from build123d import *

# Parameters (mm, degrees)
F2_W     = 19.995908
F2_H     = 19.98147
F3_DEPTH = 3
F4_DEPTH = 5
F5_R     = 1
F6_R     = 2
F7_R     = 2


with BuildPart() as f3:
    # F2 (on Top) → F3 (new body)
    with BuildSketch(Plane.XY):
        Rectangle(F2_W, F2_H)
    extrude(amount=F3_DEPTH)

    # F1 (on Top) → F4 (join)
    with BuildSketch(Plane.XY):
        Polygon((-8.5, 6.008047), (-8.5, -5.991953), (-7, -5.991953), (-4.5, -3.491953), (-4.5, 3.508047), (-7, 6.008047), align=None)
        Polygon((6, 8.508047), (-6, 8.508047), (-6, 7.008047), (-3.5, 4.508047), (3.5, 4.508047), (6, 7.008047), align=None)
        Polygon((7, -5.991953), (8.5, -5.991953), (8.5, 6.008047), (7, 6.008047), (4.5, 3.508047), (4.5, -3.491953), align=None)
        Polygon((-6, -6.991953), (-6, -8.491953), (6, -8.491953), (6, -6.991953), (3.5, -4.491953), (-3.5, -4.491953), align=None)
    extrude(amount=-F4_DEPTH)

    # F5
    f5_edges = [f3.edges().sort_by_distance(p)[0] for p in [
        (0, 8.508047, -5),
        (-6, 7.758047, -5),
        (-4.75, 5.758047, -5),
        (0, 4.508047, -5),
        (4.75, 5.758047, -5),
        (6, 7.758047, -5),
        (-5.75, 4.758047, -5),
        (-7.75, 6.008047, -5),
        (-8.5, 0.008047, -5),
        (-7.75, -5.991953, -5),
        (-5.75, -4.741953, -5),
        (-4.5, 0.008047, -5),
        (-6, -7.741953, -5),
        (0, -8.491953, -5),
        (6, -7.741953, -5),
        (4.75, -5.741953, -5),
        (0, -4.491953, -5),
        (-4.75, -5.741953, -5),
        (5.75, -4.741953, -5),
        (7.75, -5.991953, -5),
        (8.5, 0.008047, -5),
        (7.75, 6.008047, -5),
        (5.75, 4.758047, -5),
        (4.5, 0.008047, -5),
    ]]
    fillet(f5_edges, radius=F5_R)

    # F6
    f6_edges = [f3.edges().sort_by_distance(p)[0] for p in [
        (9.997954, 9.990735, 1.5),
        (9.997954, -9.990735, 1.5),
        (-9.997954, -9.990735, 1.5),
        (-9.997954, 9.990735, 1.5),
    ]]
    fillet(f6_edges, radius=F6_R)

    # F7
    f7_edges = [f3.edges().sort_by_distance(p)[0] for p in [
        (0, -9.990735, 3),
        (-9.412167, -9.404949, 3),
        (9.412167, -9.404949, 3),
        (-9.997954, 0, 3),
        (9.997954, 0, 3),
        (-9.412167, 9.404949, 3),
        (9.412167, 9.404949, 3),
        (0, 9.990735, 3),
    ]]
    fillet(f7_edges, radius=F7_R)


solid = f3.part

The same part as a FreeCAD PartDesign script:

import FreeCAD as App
import Part
import Sketcher
from FreeCAD import Vector
Q = App.Units.Quantity


def edges_at(feature, points):
    """Names of the edges that pass closest to the given points."""
    edges = feature.Shape.Edges
    near = lambda p: min(range(len(edges)), key=lambda i: edges[i].distToShape(Part.Vertex(*p))[0])
    return sorted({f"Edge{near(p) + 1}" for p in points})


def add_polygon(sketch, points):
    """Adds a closed chain of lines whose ends are joined by coincident constraints."""
    first, n = sketch.GeometryCount, len(points)
    for a, b in zip(points, points[1:] + points[:1]):
        sketch.addGeometry(Part.LineSegment(App.Vector(*a, 0), App.Vector(*b, 0)), False)
    for i in range(n):
        sketch.addConstraint(Sketcher.Constraint("Coincident", first + i, 2, first + (i + 1) % n, 1))

doc = App.newDocument("Part")
params = doc.addObject("Spreadsheet::Sheet", "Params")
for row, (alias, value) in enumerate([
    ("pad1_length", "3 mm"),
    ("sketch2_width", "12 mm"),
    ("sketch2_width2", "7 mm"),
    ("sketch2_width3", "1.5 mm"),
    ("pad2_length", "5 mm"),
    ("fillet_radius", "1 mm"),
    ("fillet2_radius", "2 mm"),
    ("fillet3_radius", "2 mm"),
], start=1):
    params.set(f"A{row}", alias)
    params.set(f"B{row}", "=" + value)
    params.setAlias(f"B{row}", alias)

body = doc.addObject("PartDesign::Body", "Body")

# Sketch on XY plane
sketch1 = body.newObject("Sketcher::SketchObject", "Sketch")
sketch1.AttachmentSupport = (doc.getObject("XY_Plane"), [""])
sketch1.MapMode = "FlatFace"
add_polygon(sketch1, [(-9.997954, 9.990735), (-9.997954, -9.990735), (9.997954, -9.990735), (9.997954, 9.990735)])  # lines 0-3
sketch1.addConstraint([
    Sketcher.Constraint("Vertical", 0),
    Sketcher.Constraint("Horizontal", 1),
    Sketcher.Constraint("Vertical", 2),
    Sketcher.Constraint("Horizontal", 3),
    Sketcher.Constraint("Symmetric", 0, 2, 2, 2, -1, 1),
    Sketcher.Constraint("DistanceX", 1, 1, 1, 2, Q("19.995908 mm")),
    Sketcher.Constraint("DistanceY", 0, 2, 0, 1, Q("19.98147 mm")),
])
pad1 = body.newObject("PartDesign::Pad", "Pad")
pad1.Profile = sketch1
pad1.setExpression("Length", "Params.pad1_length")

# Sketch on XY plane
sketch2 = body.newObject("Sketcher::SketchObject", "Sketch001")
sketch2.AttachmentSupport = (doc.getObject("XY_Plane"), [""])
sketch2.MapMode = "FlatFace"
add_polygon(sketch2, [(-8.5, 6.008047), (-8.5, -5.991953), (-7, -5.991953), (-4.5, -3.491953), (-4.5, 3.508047), (-7, 6.008047)])  # lines 0-5
add_polygon(sketch2, [(6, 8.508047), (-6, 8.508047), (-6, 7.008047), (-3.5, 4.508047), (3.5, 4.508047), (6, 7.008047)])  # lines 6-11
add_polygon(sketch2, [(7, -5.991953), (8.5, -5.991953), (8.5, 6.008047), (7, 6.008047), (4.5, 3.508047), (4.5, -3.491953)])  # lines 12-17
add_polygon(sketch2, [(-6, -6.991953), (-6, -8.491953), (6, -8.491953), (6, -6.991953), (3.5, -4.491953), (-3.5, -4.491953)])  # lines 18-23
sketch2.addConstraint([
    Sketcher.Constraint("Vertical", 0),
    Sketcher.Constraint("Horizontal", 1),
    Sketcher.Constraint("Vertical", 3),
    Sketcher.Constraint("Horizontal", 5),
    Sketcher.Constraint("Horizontal", 6),
    Sketcher.Constraint("Vertical", 7),
    Sketcher.Constraint("Horizontal", 9),
    Sketcher.Constraint("Vertical", 11),
    Sketcher.Constraint("Horizontal", 12),
    Sketcher.Constraint("Vertical", 13),
    Sketcher.Constraint("Horizontal", 14),
    Sketcher.Constraint("Vertical", 16),
    Sketcher.Constraint("Vertical", 18),
    Sketcher.Constraint("Horizontal", 19),
    Sketcher.Constraint("Vertical", 20),
    Sketcher.Constraint("Horizontal", 22),
    Sketcher.Constraint("Symmetric", 7, 2, 10, 2, -2),
    Sketcher.Constraint("Symmetric", 0, 2, 12, 2, -2),
    Sketcher.Constraint("Symmetric", 4, 2, 14, 2, -2),
    Sketcher.Constraint("Symmetric", 3, 2, 15, 2, -2),
    Sketcher.Constraint("Symmetric", 20, 2, 23, 2, -2),
    Sketcher.Constraint("Perpendicular", 2, 4),
    Sketcher.Constraint("Parallel", 4, 8),
    Sketcher.Constraint("Perpendicular", 8, 10),
    Sketcher.Constraint("Parallel", 10, 15),
    Sketcher.Constraint("Perpendicular", 15, 17),
    Sketcher.Constraint("Parallel", 17, 21),
    Sketcher.Constraint("Perpendicular", 21, 23),
    Sketcher.Constraint("Horizontal", 2, 2, 16, 2),
    Sketcher.Constraint("Vertical", 1, 2, 4, 2),
    Sketcher.Constraint("Vertical", 7, 2, 18, 2),
    Sketcher.Constraint("Vertical", 9, 2, 21, 2),
    Sketcher.Constraint("Equal", 19, 0),
    Sketcher.Constraint("Equal", 22, 3),
    Sketcher.Constraint("Equal", 14, 7),
    Sketcher.Constraint("Equal", 11, 18),
    Sketcher.Constraint("DistanceX", 6, 2, 6, 1, Q("12 mm")),
    Sketcher.Constraint("DistanceX", 9, 1, 9, 2, Q("7 mm")),
    Sketcher.Constraint("DistanceX", 1, 1, 1, 2, Q("1.5 mm")),
    Sketcher.Constraint("DistanceX", 1, 2, -1, 1, Q("7 mm")),
    Sketcher.Constraint("DistanceY", 3, 2, 6, 2, Q("5 mm")),
    Sketcher.Constraint("DistanceY", 18, 2, 2, 2, Q("5 mm")),
    Sketcher.Constraint("DistanceY", 0, 2, -1, 1, Q("5.991953 mm")),
])
sketch2.setExpression("Constraints[60]", "Params.sketch2_width")
sketch2.setExpression("Constraints[61]", "Params.sketch2_width2")
sketch2.setExpression("Constraints[62]", "Params.sketch2_width3")
pad2 = body.newObject("PartDesign::Pad", "Pad001")
pad2.Profile = sketch2
pad2.setExpression("Length", "Params.pad2_length")
pad2.Reversed = True
doc.recompute()

fillet = body.newObject("PartDesign::Fillet", "Fillet")
fillet.Base = (pad2, edges_at(pad2, [
    (0, 8.508, -5),
    (-6, 7.758, -5),
    (-4.75, 5.758, -5),
    (0, 4.508, -5),
    (4.75, 5.758, -5),
    (6, 7.758, -5),
    (-5.75, 4.758, -5),
    (-7.75, 6.008, -5),
    (-8.5, 0.008, -5),
    (-7.75, -5.992, -5),
    (-5.75, -4.742, -5),
    (-4.5, 0.008, -5),
    (-6, -7.742, -5),
    (0, -8.492, -5),
    (6, -7.742, -5),
    (4.75, -5.742, -5),
    (0, -4.492, -5),
    (-4.75, -5.742, -5),
    (5.75, -4.742, -5),
    (7.75, -5.992, -5),
    (8.5, 0.008, -5),
    (7.75, 6.008, -5),
    (5.75, 4.758, -5),
    (4.5, 0.008, -5),
]))
fillet.setExpression("Radius", "Params.fillet_radius")
doc.recompute()

fillet2 = body.newObject("PartDesign::Fillet", "Fillet001")
fillet2.Base = (fillet, edges_at(fillet, [
    (9.998, 9.991, 1.5),
    (9.998, -9.991, 1.5),
    (-9.998, -9.991, 1.5),
    (-9.998, 9.991, 1.5),
]))
fillet2.setExpression("Radius", "Params.fillet2_radius")
doc.recompute()

fillet3 = body.newObject("PartDesign::Fillet", "Fillet002")
fillet3.Base = (fillet2, edges_at(fillet2, [
    (0, -9.991, 3),
    (-9.412, -9.405, 3),
    (9.412, -9.405, 3),
    (-9.998, 0, 3),
    (9.998, 0, 3),
    (-9.412, 9.405, 3),
    (9.412, 9.405, 3),
    (0, 9.991, 3),
]))
fillet3.setExpression("Radius", "Params.fillet3_radius")

doc.recompute()
